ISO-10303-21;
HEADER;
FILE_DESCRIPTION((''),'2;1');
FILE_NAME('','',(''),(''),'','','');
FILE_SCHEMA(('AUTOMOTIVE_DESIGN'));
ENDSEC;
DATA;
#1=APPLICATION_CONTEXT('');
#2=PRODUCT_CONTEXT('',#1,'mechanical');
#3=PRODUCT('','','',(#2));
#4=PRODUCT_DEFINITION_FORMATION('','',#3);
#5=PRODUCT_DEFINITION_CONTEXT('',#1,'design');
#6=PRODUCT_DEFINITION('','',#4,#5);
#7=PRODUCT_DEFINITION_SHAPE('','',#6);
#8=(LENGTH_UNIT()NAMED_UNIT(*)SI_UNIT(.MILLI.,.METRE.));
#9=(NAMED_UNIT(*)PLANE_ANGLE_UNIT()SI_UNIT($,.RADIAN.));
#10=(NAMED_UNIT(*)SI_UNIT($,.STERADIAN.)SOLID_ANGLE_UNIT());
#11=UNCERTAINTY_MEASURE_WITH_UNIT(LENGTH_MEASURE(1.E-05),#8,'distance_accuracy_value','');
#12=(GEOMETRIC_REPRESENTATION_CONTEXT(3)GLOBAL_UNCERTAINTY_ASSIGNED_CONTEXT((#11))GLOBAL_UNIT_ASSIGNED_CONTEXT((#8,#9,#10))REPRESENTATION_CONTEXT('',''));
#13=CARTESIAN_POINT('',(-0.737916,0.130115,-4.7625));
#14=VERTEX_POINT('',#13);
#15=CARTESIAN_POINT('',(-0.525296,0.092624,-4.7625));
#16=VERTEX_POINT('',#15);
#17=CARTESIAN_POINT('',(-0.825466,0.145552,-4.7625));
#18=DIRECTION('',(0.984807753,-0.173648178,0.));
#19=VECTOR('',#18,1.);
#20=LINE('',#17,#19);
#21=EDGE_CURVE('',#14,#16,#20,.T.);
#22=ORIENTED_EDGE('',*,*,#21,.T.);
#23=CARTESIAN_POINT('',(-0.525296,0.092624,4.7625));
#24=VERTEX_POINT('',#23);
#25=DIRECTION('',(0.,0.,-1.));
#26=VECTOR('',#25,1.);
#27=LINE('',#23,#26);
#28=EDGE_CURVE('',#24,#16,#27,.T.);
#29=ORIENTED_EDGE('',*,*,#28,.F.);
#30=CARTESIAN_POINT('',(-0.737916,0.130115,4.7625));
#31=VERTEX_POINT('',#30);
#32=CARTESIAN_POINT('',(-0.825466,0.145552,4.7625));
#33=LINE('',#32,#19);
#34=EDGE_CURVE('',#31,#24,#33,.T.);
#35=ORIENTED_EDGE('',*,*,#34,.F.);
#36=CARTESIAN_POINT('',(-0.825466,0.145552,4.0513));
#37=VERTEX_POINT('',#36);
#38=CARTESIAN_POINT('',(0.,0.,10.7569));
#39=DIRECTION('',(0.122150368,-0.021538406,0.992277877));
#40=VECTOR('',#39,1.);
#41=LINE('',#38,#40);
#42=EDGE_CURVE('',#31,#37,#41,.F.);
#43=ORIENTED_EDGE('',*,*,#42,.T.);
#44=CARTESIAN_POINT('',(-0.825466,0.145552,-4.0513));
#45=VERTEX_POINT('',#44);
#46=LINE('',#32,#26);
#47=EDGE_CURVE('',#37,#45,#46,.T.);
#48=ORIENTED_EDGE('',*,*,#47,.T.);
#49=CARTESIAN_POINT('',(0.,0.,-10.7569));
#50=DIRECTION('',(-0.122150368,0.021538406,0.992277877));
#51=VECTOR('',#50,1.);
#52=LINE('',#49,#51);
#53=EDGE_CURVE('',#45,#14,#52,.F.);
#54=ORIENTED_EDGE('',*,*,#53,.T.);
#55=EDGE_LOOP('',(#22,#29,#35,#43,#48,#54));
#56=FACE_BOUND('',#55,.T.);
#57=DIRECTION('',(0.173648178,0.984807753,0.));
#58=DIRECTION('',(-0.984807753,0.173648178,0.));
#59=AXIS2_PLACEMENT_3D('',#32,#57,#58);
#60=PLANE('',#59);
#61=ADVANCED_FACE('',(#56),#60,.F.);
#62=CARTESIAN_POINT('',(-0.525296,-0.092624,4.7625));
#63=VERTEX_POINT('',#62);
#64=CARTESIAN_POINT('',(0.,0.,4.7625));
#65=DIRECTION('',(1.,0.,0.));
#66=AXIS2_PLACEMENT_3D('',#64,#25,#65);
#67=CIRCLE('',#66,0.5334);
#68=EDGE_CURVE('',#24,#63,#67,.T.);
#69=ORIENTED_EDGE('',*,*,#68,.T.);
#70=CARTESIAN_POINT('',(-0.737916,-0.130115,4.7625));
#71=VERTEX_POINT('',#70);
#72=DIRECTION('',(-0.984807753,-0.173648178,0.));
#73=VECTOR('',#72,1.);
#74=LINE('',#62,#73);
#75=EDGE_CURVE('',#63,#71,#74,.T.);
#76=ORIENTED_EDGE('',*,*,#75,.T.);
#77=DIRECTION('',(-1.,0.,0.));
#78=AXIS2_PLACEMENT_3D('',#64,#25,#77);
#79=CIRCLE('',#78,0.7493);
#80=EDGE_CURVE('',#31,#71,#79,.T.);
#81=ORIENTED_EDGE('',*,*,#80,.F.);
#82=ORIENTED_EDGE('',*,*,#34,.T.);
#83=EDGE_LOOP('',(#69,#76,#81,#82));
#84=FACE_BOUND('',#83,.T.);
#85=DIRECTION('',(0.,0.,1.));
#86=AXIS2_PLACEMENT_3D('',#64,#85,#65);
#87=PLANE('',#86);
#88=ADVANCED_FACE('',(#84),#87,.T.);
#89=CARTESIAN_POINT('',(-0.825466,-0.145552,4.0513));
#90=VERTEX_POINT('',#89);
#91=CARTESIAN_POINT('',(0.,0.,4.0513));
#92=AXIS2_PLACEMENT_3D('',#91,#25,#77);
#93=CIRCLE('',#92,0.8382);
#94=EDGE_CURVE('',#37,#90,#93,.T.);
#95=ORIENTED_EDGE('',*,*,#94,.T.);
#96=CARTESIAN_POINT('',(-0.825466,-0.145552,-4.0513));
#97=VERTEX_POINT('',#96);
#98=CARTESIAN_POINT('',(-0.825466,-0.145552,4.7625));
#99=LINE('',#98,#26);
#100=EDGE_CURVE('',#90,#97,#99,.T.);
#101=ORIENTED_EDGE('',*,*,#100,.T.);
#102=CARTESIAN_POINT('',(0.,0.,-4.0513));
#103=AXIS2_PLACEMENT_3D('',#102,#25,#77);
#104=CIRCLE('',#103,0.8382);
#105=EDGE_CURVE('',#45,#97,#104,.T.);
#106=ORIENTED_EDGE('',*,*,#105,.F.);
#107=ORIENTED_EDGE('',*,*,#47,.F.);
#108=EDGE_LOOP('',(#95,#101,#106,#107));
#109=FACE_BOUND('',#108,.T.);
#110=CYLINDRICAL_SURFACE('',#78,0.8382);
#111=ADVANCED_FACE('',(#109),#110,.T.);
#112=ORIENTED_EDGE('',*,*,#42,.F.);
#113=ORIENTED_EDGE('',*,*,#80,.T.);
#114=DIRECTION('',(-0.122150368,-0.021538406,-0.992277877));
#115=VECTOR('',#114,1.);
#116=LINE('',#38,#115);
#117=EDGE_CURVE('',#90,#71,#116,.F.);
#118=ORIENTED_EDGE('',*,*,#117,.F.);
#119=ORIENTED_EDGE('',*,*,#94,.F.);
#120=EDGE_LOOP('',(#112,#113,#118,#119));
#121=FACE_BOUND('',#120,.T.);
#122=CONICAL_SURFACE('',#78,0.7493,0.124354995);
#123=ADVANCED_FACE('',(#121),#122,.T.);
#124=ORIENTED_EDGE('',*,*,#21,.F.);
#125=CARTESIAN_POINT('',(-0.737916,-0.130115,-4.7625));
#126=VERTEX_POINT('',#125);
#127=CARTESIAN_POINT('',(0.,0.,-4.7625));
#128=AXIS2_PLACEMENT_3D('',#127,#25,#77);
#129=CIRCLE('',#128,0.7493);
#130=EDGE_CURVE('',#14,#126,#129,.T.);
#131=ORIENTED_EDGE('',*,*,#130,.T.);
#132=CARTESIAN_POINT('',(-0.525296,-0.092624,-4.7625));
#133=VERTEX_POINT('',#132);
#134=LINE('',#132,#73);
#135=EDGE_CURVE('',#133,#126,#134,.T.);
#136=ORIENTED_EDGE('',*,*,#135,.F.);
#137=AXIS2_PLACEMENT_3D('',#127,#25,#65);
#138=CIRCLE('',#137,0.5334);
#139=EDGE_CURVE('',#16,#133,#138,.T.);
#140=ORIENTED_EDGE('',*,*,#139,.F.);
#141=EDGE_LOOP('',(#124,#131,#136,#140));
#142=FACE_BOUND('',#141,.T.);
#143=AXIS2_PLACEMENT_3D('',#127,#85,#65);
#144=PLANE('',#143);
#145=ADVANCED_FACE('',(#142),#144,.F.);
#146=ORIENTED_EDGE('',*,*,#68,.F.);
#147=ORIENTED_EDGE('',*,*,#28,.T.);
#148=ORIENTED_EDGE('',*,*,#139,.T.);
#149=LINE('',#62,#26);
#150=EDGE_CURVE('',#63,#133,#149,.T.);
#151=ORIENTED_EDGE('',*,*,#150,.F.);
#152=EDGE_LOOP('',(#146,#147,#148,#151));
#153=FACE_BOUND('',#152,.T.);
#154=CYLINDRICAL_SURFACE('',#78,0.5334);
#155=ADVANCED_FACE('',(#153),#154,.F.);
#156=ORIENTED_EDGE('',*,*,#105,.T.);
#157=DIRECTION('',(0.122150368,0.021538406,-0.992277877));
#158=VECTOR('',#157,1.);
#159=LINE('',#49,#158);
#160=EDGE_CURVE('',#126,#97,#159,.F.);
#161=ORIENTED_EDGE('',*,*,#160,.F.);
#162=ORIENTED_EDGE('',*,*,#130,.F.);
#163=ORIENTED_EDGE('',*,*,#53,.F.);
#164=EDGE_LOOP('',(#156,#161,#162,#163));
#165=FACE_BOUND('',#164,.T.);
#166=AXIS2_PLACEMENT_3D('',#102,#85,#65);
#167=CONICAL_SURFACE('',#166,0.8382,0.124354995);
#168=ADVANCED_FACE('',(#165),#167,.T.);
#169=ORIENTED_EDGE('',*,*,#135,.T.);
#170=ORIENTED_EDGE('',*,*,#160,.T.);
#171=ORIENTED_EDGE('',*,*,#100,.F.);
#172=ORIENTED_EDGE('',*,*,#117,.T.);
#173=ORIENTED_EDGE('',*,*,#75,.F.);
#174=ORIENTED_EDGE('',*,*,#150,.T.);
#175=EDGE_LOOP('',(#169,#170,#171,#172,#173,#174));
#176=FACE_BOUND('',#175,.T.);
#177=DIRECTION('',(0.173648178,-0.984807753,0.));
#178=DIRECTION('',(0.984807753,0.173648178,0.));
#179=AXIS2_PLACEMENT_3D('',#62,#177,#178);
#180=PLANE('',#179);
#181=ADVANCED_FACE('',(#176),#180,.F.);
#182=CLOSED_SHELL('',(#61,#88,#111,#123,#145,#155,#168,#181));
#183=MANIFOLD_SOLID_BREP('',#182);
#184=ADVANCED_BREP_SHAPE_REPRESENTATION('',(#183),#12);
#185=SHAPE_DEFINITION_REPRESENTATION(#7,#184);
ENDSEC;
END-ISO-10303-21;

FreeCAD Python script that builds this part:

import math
import FreeCAD as App
import Part
import Sketcher

V = App.Vector
Q = App.Units.Quantity


def add_polygon(sketch, points):
    """Adds a closed chain of lines whose ends are joined by coincident constraints."""
    first, n = sketch.GeometryCount, len(points)
    for a, b in zip(points, points[1:] + points[:1]):
        sketch.addGeometry(Part.LineSegment(App.Vector(*a, 0), App.Vector(*b, 0)), False)
    for i in range(n):
        sketch.addConstraint(Sketcher.Constraint("Coincident", first + i, 2, first + (i + 1) % n, 1))

doc = App.newDocument("Part")
body = doc.addObject("PartDesign::Body", "Body")

sketch1 = body.newObject("Sketcher::SketchObject", "Sketch")
sketch1.AttachmentSupport = (doc.getObject("XY_Plane"), [""])
sketch1.MapMode = "FlatFace"
sketch1.addGeometry([
    Part.LineSegment(V(-0.83, 0.15, 0), V(-0.53, 0.09, 0)),
    Part.ArcOfCircle(Part.Circle(V(0, 0, 0), V(0, 0, 1), 0.53), math.radians(-170), math.radians(170)),
    Part.LineSegment(V(-0.53, -0.09, 0), V(-0.83, -0.15, 0)),
    Part.ArcOfCircle(Part.Circle(V(0, 0, 0), V(0, 0, 1), 0.84), math.radians(-170), math.radians(170)),
], False)
sketch1.addConstraint([
    Sketcher.Constraint("Coincident", 0, 2, 1, 2),
    Sketcher.Constraint("Coincident", 1, 1, 2, 1),
    Sketcher.Constraint("Coincident", 2, 2, 3, 1),
    Sketcher.Constraint("Coincident", 3, 2, 0, 1),
    Sketcher.Constraint("Coincident", 1, 3, -1, 1),
    Sketcher.Constraint("Coincident", 3, 3, -1, 1),
    Sketcher.Constraint("Vertical", 0, 2, 1, 1),
    Sketcher.Constraint("Vertical", 2, 2, 3, 2),
    Sketcher.Constraint("Angle", 0, Q("-10 deg")),
    Sketcher.Constraint("Radius", 1, Q("0.021 in")),
    Sketcher.Constraint("Radius", 3, Q("0.033 in")),
    Sketcher.Constraint("DistanceY", 2, 2, -1, 1, Q("0.145552 mm")),
])
pad1 = body.newObject("PartDesign::Pad", "Pad")
pad1.Profile = sketch1
pad1.Length = Q("0.375 in")
pad1.Midplane = True

sketch2 = body.newObject("Sketcher::SketchObject", "Sketch001")
sketch2.AttachmentSupport = (doc.getObject("YZ_Plane"), [""])
sketch2.MapMode = "FlatFace"
add_polygon(sketch2, [(0.75, -4.76), (0.84, -4.76), (0.84, -4.05)])
add_polygon(sketch2, [(0.84, 4.05), (0.84, 4.76), (0.75, 4.76)])
sketch2.addConstraint([
    Sketcher.Constraint("Horizontal", 0),
    Sketcher.Constraint("Vertical", 1),
    Sketcher.Constraint("Vertical", 3),
    Sketcher.Constraint("Horizontal", 4),
    Sketcher.Constraint("Symmetric", 0, 2, 3, 2, -1),
    Sketcher.Constraint("Vertical", 2, 2, 4, 2),
    Sketcher.Constraint("Equal", 1, 3),
    Sketcher.Constraint("DistanceY", 1, 1, 1, 2, Q("0.028 in")),
    Sketcher.Constraint("DistanceX", 0, 1, 0, 2, Q("0.0035 in")),
    Sketcher.Constraint("DistanceX", -1, 1, 0, 2, Q("0.033 in")),
    Sketcher.Constraint("DistanceY", 0, 2, -1, 1, Q("0.1875 in")),
])
groove = body.newObject("PartDesign::Groove", "Groove")
groove.Profile = sketch2
groove.ReferenceAxis = (sketch2, ["V_Axis"])
groove.Angle = 360

doc.recompute()
